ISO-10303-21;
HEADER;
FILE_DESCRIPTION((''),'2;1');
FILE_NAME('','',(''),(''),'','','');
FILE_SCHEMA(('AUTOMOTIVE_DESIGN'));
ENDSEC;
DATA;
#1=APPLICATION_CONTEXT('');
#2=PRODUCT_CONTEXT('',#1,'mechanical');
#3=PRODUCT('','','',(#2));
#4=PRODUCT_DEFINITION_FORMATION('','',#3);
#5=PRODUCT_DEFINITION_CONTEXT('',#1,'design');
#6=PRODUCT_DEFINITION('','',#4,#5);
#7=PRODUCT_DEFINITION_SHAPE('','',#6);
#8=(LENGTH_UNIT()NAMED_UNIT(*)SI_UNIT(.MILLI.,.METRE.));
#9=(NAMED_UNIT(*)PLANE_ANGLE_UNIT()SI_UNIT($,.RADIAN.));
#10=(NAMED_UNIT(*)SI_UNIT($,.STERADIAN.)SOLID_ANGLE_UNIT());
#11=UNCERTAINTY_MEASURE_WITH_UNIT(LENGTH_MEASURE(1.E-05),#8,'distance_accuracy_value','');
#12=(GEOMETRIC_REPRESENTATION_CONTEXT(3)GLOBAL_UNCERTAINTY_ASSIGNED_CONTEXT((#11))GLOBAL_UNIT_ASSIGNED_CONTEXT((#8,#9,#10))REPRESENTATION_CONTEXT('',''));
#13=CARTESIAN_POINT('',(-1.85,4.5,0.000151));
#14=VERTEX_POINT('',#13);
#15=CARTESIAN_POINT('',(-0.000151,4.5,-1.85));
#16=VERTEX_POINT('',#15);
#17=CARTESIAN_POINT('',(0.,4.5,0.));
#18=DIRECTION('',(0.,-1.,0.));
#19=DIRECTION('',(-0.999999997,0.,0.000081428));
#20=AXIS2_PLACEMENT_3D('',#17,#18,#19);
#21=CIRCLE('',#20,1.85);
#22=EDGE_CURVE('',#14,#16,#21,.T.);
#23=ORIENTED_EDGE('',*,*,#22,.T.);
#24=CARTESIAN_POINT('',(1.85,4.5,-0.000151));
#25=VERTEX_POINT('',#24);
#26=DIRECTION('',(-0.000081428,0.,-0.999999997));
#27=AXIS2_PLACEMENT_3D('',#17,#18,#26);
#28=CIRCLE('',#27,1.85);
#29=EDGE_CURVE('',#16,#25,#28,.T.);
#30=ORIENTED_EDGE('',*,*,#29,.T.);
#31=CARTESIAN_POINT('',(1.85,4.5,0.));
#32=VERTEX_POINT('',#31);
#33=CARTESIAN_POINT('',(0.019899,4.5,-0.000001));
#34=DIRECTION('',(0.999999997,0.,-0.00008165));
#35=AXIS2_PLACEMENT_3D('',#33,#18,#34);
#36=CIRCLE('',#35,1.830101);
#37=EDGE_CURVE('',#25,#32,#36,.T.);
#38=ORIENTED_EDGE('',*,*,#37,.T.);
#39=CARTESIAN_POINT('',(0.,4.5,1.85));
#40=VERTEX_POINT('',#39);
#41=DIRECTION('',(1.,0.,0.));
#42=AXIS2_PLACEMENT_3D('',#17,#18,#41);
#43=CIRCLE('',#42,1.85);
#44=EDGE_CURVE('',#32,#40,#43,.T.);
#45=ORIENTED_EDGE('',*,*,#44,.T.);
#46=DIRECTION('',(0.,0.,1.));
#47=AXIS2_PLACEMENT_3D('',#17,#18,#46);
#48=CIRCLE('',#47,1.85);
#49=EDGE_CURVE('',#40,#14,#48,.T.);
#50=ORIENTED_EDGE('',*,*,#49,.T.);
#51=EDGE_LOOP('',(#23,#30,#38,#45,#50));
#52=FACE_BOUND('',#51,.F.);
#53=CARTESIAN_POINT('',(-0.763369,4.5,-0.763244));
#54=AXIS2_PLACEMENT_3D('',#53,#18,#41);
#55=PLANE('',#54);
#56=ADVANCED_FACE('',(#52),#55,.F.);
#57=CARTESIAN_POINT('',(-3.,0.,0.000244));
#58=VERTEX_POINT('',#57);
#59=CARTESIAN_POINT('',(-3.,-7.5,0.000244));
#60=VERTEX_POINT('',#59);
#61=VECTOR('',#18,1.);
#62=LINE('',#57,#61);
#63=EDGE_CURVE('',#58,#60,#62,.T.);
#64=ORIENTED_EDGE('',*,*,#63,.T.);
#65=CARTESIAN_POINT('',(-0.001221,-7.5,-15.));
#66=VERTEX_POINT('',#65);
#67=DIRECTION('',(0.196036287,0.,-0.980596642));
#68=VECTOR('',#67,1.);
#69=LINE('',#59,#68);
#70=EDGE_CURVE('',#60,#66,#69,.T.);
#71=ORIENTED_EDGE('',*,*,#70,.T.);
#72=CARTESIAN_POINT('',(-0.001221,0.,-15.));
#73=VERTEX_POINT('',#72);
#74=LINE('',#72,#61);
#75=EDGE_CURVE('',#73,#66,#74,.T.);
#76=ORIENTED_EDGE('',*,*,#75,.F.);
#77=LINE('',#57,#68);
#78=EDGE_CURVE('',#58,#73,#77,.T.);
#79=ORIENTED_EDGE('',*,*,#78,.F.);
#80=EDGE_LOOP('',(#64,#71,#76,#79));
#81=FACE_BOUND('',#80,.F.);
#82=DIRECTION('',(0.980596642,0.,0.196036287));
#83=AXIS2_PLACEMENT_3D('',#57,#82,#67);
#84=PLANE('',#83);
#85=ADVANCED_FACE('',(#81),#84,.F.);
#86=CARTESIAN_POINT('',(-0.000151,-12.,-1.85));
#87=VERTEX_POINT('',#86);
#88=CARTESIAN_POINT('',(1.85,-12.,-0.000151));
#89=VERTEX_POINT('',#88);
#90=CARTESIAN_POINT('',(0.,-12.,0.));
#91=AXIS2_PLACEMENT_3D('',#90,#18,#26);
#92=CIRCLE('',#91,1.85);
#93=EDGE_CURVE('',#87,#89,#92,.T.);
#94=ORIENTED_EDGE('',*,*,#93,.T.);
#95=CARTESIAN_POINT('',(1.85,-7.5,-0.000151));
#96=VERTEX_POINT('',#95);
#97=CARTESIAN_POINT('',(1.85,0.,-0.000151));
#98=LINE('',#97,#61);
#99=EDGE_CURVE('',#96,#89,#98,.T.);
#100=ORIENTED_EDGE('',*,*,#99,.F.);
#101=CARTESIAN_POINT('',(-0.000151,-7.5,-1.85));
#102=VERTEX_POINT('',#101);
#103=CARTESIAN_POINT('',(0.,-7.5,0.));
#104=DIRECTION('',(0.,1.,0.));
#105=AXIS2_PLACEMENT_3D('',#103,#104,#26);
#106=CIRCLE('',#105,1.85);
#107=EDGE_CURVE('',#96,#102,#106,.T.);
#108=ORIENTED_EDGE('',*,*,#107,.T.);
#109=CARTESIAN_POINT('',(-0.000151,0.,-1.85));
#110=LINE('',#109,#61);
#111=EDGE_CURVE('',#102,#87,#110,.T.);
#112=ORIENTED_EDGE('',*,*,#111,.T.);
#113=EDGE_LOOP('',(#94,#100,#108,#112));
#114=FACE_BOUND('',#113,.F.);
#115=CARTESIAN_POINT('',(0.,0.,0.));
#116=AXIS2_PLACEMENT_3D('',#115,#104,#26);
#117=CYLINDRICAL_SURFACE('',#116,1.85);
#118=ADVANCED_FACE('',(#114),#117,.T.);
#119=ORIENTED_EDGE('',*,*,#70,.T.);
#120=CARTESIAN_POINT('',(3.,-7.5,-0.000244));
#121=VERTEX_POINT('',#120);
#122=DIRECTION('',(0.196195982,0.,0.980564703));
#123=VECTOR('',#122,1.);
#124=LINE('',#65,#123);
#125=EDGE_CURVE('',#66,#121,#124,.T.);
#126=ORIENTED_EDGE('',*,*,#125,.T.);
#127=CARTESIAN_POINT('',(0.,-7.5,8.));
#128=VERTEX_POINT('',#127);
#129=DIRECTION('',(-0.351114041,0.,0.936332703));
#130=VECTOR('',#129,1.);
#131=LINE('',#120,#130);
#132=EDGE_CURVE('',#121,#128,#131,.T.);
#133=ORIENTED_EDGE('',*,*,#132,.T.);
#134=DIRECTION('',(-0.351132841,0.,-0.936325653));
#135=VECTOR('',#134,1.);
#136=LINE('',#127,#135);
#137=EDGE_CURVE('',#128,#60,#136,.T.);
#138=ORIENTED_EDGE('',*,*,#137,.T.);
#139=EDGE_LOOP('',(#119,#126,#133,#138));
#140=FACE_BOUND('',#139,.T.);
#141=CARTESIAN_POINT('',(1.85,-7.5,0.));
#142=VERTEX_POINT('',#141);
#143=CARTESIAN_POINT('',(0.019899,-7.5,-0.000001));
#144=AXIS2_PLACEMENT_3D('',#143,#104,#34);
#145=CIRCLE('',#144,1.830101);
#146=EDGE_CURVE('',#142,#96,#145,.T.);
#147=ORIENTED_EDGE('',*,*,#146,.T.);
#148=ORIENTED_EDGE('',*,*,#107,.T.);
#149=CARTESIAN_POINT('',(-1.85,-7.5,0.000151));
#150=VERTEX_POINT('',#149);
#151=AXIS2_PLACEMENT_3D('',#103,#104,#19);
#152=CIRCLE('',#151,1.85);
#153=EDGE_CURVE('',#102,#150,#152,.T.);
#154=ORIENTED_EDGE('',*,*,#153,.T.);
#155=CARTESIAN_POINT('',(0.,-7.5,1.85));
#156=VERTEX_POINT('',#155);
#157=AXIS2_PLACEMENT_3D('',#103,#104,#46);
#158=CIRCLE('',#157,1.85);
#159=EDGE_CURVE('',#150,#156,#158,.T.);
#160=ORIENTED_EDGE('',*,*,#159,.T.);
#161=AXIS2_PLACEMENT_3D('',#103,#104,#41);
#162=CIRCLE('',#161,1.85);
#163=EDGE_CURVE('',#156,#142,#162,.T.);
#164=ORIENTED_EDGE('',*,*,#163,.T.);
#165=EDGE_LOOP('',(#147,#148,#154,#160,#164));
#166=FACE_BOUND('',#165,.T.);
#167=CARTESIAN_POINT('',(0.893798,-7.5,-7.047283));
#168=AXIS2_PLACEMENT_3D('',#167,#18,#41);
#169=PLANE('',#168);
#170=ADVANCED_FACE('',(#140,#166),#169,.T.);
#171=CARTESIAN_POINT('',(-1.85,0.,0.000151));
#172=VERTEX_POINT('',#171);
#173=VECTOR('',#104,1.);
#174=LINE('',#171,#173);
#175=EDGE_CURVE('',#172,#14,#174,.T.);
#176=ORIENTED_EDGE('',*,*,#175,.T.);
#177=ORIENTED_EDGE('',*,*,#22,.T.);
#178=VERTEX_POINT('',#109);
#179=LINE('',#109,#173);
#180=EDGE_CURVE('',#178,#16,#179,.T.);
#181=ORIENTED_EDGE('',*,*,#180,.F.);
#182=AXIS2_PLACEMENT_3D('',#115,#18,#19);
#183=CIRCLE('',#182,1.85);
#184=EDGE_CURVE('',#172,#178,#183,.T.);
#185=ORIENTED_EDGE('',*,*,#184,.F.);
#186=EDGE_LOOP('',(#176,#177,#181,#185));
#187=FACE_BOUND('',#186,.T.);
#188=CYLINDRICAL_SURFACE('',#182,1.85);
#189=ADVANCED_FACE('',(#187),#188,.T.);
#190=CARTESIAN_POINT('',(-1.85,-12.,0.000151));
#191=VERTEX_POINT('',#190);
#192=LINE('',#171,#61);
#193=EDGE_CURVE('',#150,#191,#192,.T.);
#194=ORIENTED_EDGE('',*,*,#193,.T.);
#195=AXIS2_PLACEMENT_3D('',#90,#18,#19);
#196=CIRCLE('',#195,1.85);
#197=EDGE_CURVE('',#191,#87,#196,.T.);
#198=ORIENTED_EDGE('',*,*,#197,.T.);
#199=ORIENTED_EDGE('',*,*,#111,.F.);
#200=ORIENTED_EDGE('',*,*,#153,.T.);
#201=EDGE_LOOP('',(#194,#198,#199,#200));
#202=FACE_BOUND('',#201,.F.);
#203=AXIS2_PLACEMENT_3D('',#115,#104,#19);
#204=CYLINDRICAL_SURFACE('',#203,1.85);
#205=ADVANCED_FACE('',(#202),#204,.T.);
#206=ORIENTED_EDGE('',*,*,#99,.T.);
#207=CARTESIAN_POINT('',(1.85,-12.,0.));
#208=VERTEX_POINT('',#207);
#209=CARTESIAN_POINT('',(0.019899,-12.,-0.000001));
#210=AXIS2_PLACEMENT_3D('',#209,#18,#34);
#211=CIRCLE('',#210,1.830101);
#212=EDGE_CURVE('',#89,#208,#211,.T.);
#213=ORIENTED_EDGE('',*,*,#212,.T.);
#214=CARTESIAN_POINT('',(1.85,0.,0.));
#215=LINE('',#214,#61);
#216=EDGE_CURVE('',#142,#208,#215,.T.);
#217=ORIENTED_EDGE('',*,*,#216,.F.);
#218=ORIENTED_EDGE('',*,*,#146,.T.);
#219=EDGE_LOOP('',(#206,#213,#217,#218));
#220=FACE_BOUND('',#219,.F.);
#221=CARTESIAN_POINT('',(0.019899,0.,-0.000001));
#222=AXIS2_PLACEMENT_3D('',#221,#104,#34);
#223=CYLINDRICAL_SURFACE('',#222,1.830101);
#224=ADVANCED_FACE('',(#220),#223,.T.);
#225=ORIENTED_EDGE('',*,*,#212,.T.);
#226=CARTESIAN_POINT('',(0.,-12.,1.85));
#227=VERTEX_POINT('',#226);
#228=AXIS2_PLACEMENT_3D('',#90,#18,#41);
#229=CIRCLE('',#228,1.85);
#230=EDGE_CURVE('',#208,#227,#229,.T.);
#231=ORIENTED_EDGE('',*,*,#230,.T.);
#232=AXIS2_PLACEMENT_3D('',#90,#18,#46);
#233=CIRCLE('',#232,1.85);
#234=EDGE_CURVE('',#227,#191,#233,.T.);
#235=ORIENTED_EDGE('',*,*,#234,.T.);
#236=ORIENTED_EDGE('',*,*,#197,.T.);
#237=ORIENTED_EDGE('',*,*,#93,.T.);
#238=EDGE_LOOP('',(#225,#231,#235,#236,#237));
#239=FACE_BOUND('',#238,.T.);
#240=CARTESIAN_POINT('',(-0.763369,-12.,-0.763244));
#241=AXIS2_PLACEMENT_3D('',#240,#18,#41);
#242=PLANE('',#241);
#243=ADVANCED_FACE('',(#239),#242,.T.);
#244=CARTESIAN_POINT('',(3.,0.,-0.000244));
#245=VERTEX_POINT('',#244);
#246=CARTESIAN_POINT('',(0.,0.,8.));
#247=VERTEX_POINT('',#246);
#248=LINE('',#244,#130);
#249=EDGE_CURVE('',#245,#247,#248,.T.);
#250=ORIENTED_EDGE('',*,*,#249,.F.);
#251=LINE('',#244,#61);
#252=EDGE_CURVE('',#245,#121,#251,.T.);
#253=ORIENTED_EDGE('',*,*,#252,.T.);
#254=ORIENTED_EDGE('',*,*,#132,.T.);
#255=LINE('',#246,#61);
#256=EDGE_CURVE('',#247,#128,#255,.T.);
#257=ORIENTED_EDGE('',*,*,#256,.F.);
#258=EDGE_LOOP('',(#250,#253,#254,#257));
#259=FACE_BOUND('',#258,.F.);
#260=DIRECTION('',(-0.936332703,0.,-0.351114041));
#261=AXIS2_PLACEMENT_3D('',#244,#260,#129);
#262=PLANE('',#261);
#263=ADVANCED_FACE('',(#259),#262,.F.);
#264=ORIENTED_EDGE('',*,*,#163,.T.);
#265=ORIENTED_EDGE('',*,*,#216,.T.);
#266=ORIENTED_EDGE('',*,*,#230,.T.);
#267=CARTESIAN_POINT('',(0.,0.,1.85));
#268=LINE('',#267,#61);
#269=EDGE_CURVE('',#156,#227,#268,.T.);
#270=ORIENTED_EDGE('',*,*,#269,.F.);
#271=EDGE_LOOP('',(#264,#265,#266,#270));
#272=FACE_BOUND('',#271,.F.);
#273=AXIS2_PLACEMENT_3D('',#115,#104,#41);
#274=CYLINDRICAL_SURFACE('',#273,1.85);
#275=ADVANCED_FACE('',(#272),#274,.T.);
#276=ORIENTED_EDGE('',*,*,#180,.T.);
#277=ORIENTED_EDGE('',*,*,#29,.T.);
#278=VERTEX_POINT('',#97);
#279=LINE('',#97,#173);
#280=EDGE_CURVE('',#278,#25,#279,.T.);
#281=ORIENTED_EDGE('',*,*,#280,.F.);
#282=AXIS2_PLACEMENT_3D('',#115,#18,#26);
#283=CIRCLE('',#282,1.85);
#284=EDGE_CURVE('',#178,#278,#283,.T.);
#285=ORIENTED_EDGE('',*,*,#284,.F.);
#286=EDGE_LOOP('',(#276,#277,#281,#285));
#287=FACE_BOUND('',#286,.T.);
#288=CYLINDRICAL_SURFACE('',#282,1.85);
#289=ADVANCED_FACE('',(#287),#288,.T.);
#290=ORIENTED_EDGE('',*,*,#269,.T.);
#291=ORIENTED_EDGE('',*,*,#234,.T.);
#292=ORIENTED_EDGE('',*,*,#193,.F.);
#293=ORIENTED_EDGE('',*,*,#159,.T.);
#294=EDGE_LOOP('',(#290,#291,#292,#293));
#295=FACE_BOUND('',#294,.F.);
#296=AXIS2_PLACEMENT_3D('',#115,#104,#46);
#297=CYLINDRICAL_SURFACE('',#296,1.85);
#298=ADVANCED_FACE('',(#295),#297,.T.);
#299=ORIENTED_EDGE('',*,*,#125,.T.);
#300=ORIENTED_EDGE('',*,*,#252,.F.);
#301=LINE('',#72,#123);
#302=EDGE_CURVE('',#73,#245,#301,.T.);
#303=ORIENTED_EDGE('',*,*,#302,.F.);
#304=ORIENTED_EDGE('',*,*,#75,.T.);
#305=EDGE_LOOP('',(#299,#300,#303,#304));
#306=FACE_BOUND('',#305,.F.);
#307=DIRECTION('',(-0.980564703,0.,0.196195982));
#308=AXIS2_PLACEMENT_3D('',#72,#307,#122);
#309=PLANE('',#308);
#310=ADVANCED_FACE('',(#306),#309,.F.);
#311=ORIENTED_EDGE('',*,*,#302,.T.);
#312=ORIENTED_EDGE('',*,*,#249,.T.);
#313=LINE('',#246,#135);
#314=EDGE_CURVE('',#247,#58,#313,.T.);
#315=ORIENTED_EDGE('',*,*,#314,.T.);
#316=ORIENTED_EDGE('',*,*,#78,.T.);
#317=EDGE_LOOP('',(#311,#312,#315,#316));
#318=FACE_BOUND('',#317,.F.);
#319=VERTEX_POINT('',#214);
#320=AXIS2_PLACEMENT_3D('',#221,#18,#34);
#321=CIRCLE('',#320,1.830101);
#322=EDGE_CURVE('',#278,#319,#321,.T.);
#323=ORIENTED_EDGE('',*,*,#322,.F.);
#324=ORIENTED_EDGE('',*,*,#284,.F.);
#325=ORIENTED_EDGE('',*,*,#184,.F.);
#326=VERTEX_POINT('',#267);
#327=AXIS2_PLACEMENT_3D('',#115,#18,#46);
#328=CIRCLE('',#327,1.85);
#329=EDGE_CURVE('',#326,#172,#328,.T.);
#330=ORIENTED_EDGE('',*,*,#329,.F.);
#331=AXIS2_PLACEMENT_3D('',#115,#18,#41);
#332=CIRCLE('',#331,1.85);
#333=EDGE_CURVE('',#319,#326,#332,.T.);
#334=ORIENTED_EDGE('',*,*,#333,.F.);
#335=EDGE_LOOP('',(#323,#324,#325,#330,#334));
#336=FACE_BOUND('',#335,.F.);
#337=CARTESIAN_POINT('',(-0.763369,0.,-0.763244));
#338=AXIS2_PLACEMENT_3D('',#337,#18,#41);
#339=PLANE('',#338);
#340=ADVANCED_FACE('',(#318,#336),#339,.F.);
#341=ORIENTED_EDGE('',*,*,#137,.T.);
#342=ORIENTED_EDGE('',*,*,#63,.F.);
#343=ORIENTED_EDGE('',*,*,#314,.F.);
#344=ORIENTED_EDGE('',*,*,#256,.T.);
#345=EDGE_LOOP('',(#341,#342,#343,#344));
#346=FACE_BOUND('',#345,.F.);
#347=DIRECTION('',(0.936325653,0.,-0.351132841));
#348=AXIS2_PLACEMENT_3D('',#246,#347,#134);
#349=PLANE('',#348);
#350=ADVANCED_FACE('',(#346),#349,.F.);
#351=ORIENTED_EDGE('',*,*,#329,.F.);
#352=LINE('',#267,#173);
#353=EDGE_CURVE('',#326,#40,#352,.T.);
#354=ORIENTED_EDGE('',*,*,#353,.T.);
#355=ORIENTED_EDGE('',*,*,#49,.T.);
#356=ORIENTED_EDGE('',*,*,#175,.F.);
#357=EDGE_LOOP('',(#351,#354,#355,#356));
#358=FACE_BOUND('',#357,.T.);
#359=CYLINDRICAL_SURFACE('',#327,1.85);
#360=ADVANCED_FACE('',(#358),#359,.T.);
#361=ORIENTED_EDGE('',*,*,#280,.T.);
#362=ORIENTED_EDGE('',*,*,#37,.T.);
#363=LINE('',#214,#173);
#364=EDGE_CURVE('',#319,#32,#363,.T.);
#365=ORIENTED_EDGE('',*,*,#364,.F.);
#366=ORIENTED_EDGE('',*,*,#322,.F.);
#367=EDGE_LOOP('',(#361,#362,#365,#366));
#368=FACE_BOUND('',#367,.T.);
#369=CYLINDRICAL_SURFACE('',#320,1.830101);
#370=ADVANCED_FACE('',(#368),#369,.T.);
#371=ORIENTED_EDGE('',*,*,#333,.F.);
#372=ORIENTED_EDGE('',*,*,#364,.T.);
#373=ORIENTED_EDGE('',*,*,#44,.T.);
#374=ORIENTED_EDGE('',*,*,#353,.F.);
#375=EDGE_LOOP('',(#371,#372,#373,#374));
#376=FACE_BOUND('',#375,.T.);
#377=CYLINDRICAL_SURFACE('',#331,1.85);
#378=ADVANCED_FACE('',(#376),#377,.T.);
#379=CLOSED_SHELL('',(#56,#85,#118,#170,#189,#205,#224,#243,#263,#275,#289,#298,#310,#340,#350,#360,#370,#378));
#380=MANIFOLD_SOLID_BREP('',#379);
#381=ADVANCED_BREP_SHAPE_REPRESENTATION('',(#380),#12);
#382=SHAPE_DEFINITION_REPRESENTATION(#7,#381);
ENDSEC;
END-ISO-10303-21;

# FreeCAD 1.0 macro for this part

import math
import FreeCAD as App
import Part
import Sketcher
from FreeCAD import Vector
Q = App.Units.Quantity

doc = App.newDocument("Part")
body = doc.addObject("PartDesign::Body", "Body")

sketch1 = body.newObject("Sketcher::SketchObject", "Sketch")
sketch1.AttachmentSupport = (doc.getObject("XZ_Plane"), [""])
sketch1.MapMode = "FlatFace"
sketch1.addGeometry([
    Part.LineSegment(Vector(0, 8, 0), Vector(-3, 0.000244, 0)),
    Part.LineSegment(Vector(-3, 0.000244, 0), Vector(-0.001221, -15, 0)),
    Part.LineSegment(Vector(-0.001221, -15, 0), Vector(3, -0.000244, 0)),
    Part.LineSegment(Vector(3, -0.000244, 0), Vector(0, 8, 0)),
], False)
sketch1.addConstraint([
    Sketcher.Constraint("Coincident", 0, 2, 1, 1),
    Sketcher.Constraint("Coincident", 1, 2, 2, 1),
    Sketcher.Constraint("Coincident", 2, 2, 3, 1),
    Sketcher.Constraint("Coincident", 3, 2, 0, 1),
    Sketcher.Constraint("Symmetric", 0, 2, 2, 2, -1, 1),
    Sketcher.Constraint("PointOnObject", 3, 2, -2),
    Sketcher.Constraint("Equal", 1, 2),
    Sketcher.Constraint("DistanceX", 0, 2, -1, 1, Q("3 mm")),
    Sketcher.Constraint("DistanceY", 1, 2, -1, 1, Q("15 mm")),
    Sketcher.Constraint("DistanceY", -1, 1, 3, 2, Q("8 mm")),
    Sketcher.Constraint("DistanceX", 1, 2, -1, 1, Q("0.001221 mm")),
])
pad1 = body.newObject("PartDesign::Pad", "Pad")
pad1.Profile = sketch1
pad1.Length = 7.5

sketch2 = body.newObject("Sketcher::SketchObject", "Sketch001")
sketch2.AttachmentSupport = (doc.getObject("XZ_Plane"), [""])
sketch2.MapMode = "FlatFace"
sketch2.addGeometry([
    Part.ArcOfCircle(Part.Circle(Vector(0, 0, 0), Vector(0, 0, 1), 1.85), math.radians(179.995334), math.radians(269.995334)),
    Part.ArcOfCircle(Part.Circle(Vector(0, 0, 0), Vector(0, 0, 1), 1.85), math.radians(-90.004666), math.radians(-0.004666)),
    Part.ArcOfCircle(Part.Circle(Vector(0.019899, -0.000001, 0), Vector(0, 0, 1), 1.830101), math.radians(-0.004678), math.radians(0.000038)),
    Part.ArcOfCircle(Part.Circle(Vector(0, 0, 0), Vector(0, 0, 1), 1.85), math.radians(0), math.radians(90)),
    Part.ArcOfCircle(Part.Circle(Vector(0, 0, 0), Vector(0, 0, 1), 1.85), math.radians(90), math.radians(179.995334)),
], False)
sketch2.addConstraint([
    Sketcher.Constraint("Coincident", 0, 2, 1, 1),
    Sketcher.Constraint("Coincident", 1, 2, 2, 1),
    Sketcher.Constraint("Coincident", 2, 2, 3, 1),
    Sketcher.Constraint("Coincident", 3, 2, 4, 1),
    Sketcher.Constraint("Coincident", 4, 2, 0, 1),
    Sketcher.Constraint("Coincident", 0, 3, -1, 1),
    Sketcher.Constraint("Coincident", 1, 3, -1, 1),
    Sketcher.Constraint("Coincident", 3, 3, -1, 1),
    Sketcher.Constraint("PointOnObject", 2, 3, -1),
    Sketcher.Constraint("PointOnObject", 2, 2, -1),
    Sketcher.Constraint("PointOnObject", 3, 2, -2),
    Sketcher.Constraint("Radius", 0, Q("1.85 mm")),
    Sketcher.Constraint("Radius", 4, Q("1.85 mm")),
    Sketcher.Constraint("Radius", 2, Q("1.830101 mm")),
    Sketcher.Constraint("DistanceX", 0, 2, -1, 1, Q("0.000151 mm")),
    Sketcher.Constraint("DistanceY", 1, 2, -1, 1, Q("0.000151 mm")),
    Sketcher.Constraint("DistanceY", -1, 1, 4, 2, Q("0.000151 mm")),
])
pad2 = body.newObject("PartDesign::Pad", "Pad001")
pad2.Profile = sketch2
pad2.Type = "TwoLengths"
pad2.Length = 12
pad2.Length2 = 4.5

doc.recompute()
